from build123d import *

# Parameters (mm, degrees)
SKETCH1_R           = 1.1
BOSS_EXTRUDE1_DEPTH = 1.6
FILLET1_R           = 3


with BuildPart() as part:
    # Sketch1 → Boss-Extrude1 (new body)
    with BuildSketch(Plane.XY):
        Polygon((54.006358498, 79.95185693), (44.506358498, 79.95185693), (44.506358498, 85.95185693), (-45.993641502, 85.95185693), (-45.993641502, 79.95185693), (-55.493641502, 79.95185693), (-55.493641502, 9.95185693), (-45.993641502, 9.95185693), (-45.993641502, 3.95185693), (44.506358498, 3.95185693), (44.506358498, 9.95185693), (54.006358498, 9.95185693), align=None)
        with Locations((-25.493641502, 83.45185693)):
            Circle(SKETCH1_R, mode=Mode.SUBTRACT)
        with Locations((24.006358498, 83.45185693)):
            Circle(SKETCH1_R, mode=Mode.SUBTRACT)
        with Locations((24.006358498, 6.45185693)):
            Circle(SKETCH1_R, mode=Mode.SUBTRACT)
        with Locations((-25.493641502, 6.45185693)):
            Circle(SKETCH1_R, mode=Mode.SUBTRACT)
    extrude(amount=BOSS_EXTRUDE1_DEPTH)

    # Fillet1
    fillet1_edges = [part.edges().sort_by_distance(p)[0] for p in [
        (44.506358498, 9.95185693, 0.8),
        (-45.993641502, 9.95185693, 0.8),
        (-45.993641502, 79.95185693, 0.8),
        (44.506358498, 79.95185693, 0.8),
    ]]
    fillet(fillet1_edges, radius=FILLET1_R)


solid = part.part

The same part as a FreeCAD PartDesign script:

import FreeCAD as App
import Part
import Sketcher
from FreeCAD import Vector


def edges_at(feature, points):
    """Names of the edges that pass closest to the given points."""
    edges = feature.Shape.Edges
    near = lambda p: min(range(len(edges)), key=lambda i: edges[i].distToShape(Part.Vertex(*p))[0])
    return sorted({f"Edge{near(p) + 1}" for p in points})

doc = App.newDocument("Part")
body = doc.addObject("PartDesign::Body", "Body")

# Sketch on XY plane
sketch1 = body.newObject("Sketcher::SketchObject", "Sketch")
sketch1.AttachmentSupport = (doc.getObject("XY_Plane"), [""])
sketch1.MapMode = "FlatFace"
sketch1.addGeometry([
    Part.LineSegment(Vector(54.006358, 79.951857, 0), Vector(44.506358, 79.951857, 0)),  # 0
    Part.LineSegment(Vector(44.506358, 79.951857, 0), Vector(44.506358, 85.951857, 0)),  # 1
    Part.LineSegment(Vector(44.506358, 85.951857, 0), Vector(-45.993642, 85.951857, 0)),  # 2
    Part.LineSegment(Vector(-45.993642, 85.951857, 0), Vector(-45.993642, 79.951857, 0)),  # 3
    Part.LineSegment(Vector(-45.993642, 79.951857, 0), Vector(-55.493642, 79.951857, 0)),  # 4
    Part.LineSegment(Vector(-55.493642, 79.951857, 0), Vector(-55.493642, 9.951857, 0)),  # 5
    Part.LineSegment(Vector(-55.493642, 9.951857, 0), Vector(-45.993642, 9.951857, 0)),  # 6
    Part.LineSegment(Vector(-45.993642, 9.951857, 0), Vector(-45.993642, 3.951857, 0)),  # 7
    Part.LineSegment(Vector(-45.993642, 3.951857, 0), Vector(44.506358, 3.951857, 0)),  # 8
    Part.LineSegment(Vector(44.506358, 3.951857, 0), Vector(44.506358, 9.951857, 0)),  # 9
    Part.LineSegment(Vector(44.506358, 9.951857, 0), Vector(54.006358, 9.951857, 0)),  # 10
    Part.LineSegment(Vector(54.006358, 9.951857, 0), Vector(54.006358, 79.951857, 0)),  # 11
    Part.Circle(Vector(-25.493642, 6.451857, 0), Vector(0, 0, 1), 1.1),  # 12
    Part.Circle(Vector(24.006358, 6.451857, 0), Vector(0, 0, 1), 1.1),  # 13
    Part.Circle(Vector(-25.493642, 83.451857, 0), Vector(0, 0, 1), 1.1),  # 14
    Part.Circle(Vector(24.006358, 83.451857, 0), Vector(0, 0, 1), 1.1),  # 15
], False)
sketch1.addConstraint([
    Sketcher.Constraint("Coincident", 0, 2, 1, 1),
    Sketcher.Constraint("Coincident", 1, 2, 2, 1),
    Sketcher.Constraint("Coincident", 2, 2, 3, 1),
    Sketcher.Constraint("Coincident", 3, 2, 4, 1),
    Sketcher.Constraint("Coincident", 4, 2, 5, 1),
    Sketcher.Constraint("Coincident", 5, 2, 6, 1),
    Sketcher.Constraint("Coincident", 6, 2, 7, 1),
    Sketcher.Constraint("Coincident", 7, 2, 8, 1),
    Sketcher.Constraint("Coincident", 8, 2, 9, 1),
    Sketcher.Constraint("Coincident", 9, 2, 10, 1),
    Sketcher.Constraint("Coincident", 10, 2, 11, 1),
    Sketcher.Constraint("Coincident", 11, 2, 0, 1),
    Sketcher.Constraint("Horizontal", 0),
    Sketcher.Constraint("Vertical", 1),
    Sketcher.Constraint("Horizontal", 2),
    Sketcher.Constraint("Vertical", 3),
    Sketcher.Constraint("Horizontal", 4),
    Sketcher.Constraint("Vertical", 5),
    Sketcher.Constraint("Horizontal", 6),
    Sketcher.Constraint("Vertical", 7),
    Sketcher.Constraint("Horizontal", 8),
    Sketcher.Constraint("Vertical", 9),
    Sketcher.Constraint("Horizontal", 10),
    Sketcher.Constraint("Vertical", 11),
    Sketcher.Constraint("Equal", 12, 13),
    Sketcher.Constraint("Equal", 13, 14),
    Sketcher.Constraint("Equal", 14, 15),
    Sketcher.Constraint("Horizontal", 12, 3, 13, 3),
    Sketcher.Constraint("Horizontal", 14, 3, 15, 3),
    Sketcher.Constraint("Horizontal", 0, 2, 3, 2),
    Sketcher.Constraint("Horizontal", 6, 2, 9, 2),
    Sketcher.Constraint("Vertical", 12, 3, 14, 3),
    Sketcher.Constraint("Vertical", 13, 3, 15, 3),
    Sketcher.Constraint("Vertical", 3, 2, 6, 2),
    Sketcher.Constraint("Vertical", 1, 2, 8, 2),
    Sketcher.Constraint("Equal", 0, 4),
    Sketcher.Constraint("Equal", 3, 7),
    Sketcher.Constraint("Diameter", 12, 2.2),
    Sketcher.Constraint("DistanceY", 1, 1, 1, 2, 6.0),
    Sketcher.Constraint("DistanceY", 5, 2, 5, 1, 70.0),
    Sketcher.Constraint("DistanceX", 0, 2, 0, 1, 9.5),
    Sketcher.Constraint("DistanceX", 2, 2, 2, 1, 90.5),
    Sketcher.Constraint("DistanceY", 12, 3, 14, 3, 77.0),
    Sketcher.Constraint("DistanceX", 14, 3, 0, 2, 70.0),
    Sketcher.Constraint("DistanceX", 2, 2, 15, 3, 70.0),
    Sketcher.Constraint("DistanceY", 0, 2, 15, 3, 3.5),
    Sketcher.Constraint("DistanceX", 12, 3, -1, 1, 25.493642),
    Sketcher.Constraint("DistanceY", -1, 1, 12, 3, 6.451857),
])
pad1 = body.newObject("PartDesign::Pad", "Pad")
pad1.Profile = sketch1
pad1.Length = 1.6
doc.recompute()

fillet = body.newObject("PartDesign::Fillet", "Fillet")
fillet.Base = (pad1, edges_at(pad1, [
    (44.506, 9.952, 0.8),
    (-45.994, 9.952, 0.8),
    (-45.994, 79.952, 0.8),
    (44.506, 79.952, 0.8),
]))
fillet.Radius = 3

doc.recompute()
